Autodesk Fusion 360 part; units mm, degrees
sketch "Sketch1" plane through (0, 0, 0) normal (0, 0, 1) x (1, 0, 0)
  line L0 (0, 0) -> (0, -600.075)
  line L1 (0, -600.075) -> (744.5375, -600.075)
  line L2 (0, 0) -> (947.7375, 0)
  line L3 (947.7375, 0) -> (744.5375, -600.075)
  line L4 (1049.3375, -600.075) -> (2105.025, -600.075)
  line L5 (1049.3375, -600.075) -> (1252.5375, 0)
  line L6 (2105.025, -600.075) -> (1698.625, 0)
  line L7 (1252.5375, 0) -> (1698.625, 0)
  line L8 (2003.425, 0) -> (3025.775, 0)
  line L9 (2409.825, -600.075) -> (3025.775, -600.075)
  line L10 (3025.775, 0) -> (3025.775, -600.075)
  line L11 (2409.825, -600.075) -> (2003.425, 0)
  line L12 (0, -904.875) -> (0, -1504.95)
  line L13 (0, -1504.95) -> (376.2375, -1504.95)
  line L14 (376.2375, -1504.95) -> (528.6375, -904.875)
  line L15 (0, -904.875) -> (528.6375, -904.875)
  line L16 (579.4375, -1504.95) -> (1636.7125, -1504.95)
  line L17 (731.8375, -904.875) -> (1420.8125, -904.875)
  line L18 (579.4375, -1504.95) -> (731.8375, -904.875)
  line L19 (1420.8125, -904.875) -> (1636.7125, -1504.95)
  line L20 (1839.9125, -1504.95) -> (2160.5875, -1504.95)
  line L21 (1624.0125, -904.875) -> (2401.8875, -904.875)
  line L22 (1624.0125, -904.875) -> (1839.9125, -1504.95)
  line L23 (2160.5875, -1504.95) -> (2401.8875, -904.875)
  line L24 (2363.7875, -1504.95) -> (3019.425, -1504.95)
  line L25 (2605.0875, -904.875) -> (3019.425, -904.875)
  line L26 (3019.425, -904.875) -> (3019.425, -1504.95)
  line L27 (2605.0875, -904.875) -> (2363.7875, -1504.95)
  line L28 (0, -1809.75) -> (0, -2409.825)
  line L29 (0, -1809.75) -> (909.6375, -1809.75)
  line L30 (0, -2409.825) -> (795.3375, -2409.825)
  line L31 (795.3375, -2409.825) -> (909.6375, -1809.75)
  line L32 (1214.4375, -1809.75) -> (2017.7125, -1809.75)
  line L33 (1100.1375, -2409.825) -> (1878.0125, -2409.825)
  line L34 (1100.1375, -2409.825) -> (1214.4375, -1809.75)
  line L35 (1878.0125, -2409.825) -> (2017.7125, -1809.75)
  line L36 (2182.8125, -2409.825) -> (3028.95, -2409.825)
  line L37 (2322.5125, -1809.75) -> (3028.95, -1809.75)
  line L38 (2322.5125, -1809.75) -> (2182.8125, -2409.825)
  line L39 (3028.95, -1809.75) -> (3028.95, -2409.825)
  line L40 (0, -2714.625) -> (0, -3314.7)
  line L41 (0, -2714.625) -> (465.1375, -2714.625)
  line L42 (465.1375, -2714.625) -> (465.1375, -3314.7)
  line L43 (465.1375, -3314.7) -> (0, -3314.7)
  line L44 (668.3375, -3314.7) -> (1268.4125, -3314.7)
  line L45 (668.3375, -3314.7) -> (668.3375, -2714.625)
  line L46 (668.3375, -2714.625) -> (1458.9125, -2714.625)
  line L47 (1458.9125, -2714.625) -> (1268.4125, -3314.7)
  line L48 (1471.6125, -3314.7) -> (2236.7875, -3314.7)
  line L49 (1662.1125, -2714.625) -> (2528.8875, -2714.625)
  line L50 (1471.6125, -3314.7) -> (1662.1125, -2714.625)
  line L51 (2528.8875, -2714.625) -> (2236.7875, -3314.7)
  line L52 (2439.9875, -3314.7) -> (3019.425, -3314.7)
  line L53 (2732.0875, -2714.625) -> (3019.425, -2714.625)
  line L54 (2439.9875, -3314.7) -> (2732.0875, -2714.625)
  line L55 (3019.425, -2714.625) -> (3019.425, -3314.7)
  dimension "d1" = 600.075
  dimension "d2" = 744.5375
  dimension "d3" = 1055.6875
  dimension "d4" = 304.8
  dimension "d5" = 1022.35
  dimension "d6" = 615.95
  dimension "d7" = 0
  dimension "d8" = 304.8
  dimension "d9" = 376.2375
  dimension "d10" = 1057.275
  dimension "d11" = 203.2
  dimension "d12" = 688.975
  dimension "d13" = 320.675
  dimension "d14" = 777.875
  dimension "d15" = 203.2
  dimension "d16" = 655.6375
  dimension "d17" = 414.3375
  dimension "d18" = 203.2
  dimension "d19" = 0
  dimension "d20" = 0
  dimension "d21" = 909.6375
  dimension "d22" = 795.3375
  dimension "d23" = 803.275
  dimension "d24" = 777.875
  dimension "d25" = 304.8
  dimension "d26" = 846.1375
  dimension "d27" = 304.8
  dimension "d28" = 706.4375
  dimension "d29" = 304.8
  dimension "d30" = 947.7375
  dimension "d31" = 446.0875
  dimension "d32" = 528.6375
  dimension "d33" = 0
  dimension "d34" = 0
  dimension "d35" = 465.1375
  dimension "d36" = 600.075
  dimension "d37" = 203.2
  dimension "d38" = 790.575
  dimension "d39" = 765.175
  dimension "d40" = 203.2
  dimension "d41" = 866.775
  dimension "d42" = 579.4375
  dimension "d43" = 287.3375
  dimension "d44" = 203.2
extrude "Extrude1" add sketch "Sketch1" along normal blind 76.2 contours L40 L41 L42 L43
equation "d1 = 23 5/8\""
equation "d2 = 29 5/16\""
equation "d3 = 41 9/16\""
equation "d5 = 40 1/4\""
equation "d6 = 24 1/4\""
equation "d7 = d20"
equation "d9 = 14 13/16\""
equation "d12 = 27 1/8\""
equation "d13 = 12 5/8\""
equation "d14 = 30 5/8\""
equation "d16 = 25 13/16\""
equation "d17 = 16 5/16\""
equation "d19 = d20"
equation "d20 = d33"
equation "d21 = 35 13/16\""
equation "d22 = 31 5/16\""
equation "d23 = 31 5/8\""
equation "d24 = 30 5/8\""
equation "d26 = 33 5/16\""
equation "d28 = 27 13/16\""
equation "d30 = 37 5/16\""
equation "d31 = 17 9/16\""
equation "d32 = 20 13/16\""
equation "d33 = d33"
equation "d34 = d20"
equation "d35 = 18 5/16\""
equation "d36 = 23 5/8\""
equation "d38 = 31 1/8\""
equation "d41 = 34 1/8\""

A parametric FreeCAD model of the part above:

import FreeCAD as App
import Part
import Sketcher
Q = App.Units.Quantity


def add_polygon(sketch, points):
    """Adds a closed chain of lines whose ends are joined by coincident constraints."""
    first, n = sketch.GeometryCount, len(points)
    for a, b in zip(points, points[1:] + points[:1]):
        sketch.addGeometry(Part.LineSegment(App.Vector(*a, 0), App.Vector(*b, 0)), False)
    for i in range(n):
        sketch.addConstraint(Sketcher.Constraint("Coincident", first + i, 2, first + (i + 1) % n, 1))

doc = App.newDocument("Part")
body = doc.addObject("PartDesign::Body", "Body")

sketch1 = body.newObject("Sketcher::SketchObject", "Sketch")
sketch1.AttachmentSupport = (doc.getObject("XY_Plane"), [""])
sketch1.MapMode = "FlatFace"
add_polygon(sketch1, [(465.1375, -2714.625), (0, -2714.625), (0, -3314.7), (465.1375, -3314.7)])
sketch1.addConstraint([
    Sketcher.Constraint("Horizontal", 0),
    Sketcher.Constraint("Vertical", 1),
    Sketcher.Constraint("Horizontal", 2),
    Sketcher.Constraint("Vertical", 3),
    Sketcher.Constraint("PointOnObject", 0, 2, -2),
    Sketcher.Constraint("DistanceX", 0, 2, 0, 1, Q("18.3125 in")),
    Sketcher.Constraint("DistanceY", 1, 2, 1, 1, Q("23.625 in")),
    Sketcher.Constraint("DistanceY", 1, 2, -1, 1, Q("130.5 in")),
])
pad1 = body.newObject("PartDesign::Pad", "Pad")
pad1.Profile = sketch1
pad1.Length = Q("3 in")

doc.recompute()
